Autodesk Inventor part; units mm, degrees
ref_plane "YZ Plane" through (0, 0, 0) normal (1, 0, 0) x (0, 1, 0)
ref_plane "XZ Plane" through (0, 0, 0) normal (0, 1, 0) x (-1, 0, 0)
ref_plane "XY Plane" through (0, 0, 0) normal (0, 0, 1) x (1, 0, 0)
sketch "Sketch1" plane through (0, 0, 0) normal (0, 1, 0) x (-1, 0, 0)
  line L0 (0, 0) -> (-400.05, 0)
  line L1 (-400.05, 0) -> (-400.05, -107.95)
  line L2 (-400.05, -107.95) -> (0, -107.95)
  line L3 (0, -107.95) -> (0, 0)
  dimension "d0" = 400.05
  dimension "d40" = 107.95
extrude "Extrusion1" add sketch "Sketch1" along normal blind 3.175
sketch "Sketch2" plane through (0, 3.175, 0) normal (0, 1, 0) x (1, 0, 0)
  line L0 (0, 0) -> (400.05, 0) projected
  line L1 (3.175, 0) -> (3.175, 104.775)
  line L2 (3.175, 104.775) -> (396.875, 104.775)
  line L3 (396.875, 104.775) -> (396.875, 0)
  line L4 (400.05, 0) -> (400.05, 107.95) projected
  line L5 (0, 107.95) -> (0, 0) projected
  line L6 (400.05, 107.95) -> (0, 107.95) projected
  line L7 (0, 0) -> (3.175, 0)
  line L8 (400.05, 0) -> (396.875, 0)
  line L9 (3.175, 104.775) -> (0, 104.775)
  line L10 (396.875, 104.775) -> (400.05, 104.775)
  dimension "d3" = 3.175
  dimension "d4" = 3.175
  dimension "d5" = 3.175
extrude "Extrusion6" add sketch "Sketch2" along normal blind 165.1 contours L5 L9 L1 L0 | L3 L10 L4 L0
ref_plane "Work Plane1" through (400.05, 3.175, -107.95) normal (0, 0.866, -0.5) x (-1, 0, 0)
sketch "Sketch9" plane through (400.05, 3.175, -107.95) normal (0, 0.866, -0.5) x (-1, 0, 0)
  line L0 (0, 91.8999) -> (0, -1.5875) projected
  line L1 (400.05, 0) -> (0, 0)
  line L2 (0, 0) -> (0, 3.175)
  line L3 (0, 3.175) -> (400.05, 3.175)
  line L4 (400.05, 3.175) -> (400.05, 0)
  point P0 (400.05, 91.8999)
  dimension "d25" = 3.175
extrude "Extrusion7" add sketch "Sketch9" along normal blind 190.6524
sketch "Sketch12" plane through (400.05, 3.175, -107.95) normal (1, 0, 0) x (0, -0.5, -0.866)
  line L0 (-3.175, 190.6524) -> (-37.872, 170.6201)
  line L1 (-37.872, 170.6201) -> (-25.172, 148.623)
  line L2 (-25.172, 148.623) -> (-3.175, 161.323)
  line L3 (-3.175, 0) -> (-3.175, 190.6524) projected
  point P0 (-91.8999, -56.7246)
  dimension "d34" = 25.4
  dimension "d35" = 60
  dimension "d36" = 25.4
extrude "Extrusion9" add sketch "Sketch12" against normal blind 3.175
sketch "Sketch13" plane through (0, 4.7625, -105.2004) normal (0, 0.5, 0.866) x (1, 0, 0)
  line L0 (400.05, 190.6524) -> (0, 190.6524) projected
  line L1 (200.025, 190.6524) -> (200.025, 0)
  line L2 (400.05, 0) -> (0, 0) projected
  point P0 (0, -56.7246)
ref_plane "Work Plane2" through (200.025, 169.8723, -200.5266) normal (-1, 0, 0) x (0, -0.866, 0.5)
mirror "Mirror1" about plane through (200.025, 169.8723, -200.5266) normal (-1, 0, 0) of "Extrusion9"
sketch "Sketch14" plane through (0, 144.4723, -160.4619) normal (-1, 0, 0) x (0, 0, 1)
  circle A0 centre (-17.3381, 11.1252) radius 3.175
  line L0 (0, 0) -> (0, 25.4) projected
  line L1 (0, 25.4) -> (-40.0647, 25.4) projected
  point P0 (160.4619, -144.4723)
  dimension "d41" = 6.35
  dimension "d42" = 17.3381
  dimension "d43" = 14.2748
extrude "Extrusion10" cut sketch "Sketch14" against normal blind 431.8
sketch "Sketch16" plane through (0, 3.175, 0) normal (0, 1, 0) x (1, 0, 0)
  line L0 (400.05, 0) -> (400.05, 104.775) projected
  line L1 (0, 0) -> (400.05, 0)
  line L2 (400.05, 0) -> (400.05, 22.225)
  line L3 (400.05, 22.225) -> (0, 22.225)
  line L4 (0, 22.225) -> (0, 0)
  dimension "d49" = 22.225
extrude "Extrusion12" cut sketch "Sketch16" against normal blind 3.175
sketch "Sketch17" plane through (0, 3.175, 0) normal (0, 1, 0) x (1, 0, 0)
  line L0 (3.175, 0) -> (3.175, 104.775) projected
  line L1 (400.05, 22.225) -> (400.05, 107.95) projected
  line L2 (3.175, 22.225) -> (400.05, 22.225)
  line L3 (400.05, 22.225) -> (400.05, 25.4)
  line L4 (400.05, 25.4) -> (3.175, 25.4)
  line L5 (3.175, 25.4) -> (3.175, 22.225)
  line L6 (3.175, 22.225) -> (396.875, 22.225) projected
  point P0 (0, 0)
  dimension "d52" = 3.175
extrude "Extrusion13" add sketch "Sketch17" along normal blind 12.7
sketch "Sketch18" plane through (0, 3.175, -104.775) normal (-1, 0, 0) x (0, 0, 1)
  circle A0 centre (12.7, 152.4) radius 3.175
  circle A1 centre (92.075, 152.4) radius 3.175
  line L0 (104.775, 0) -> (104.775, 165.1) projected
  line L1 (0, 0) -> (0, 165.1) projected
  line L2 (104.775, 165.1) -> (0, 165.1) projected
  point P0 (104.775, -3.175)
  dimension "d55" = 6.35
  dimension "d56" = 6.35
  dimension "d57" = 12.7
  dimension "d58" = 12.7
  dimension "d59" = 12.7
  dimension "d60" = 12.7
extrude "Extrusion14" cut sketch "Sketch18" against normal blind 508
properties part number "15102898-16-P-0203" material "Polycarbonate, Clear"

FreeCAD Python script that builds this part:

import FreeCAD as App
import Part
import Sketcher
from FreeCAD import Vector
Q = App.Units.Quantity


def add_polygon(sketch, points):
    """Adds a closed chain of lines whose ends are joined by coincident constraints."""
    first, n = sketch.GeometryCount, len(points)
    for a, b in zip(points, points[1:] + points[:1]):
        sketch.addGeometry(Part.LineSegment(App.Vector(*a, 0), App.Vector(*b, 0)), False)
    for i in range(n):
        sketch.addConstraint(Sketcher.Constraint("Coincident", first + i, 2, first + (i + 1) % n, 1))

doc = App.newDocument("Part")
body = doc.addObject("PartDesign::Body", "Body")
body.AllowCompound = True

# Sketch on XZ plane
sketch1 = body.newObject("Sketcher::SketchObject", "Sketch")
sketch1.AttachmentSupport = (doc.getObject("XZ_Plane"), [""])
sketch1.MapMode = "FlatFace"
add_polygon(sketch1, [(0, -107.95), (0, 0), (400.05, 0), (400.05, -107.95)])  # lines 0-3
sketch1.addConstraint([
    Sketcher.Constraint("Vertical", 0),
    Sketcher.Constraint("Horizontal", 1),
    Sketcher.Constraint("Vertical", 2),
    Sketcher.Constraint("Horizontal", 3),
    Sketcher.Constraint("Coincident", 0, 2, -1, 1),
    Sketcher.Constraint("DistanceX", 1, 1, 1, 2, Q("15.75 in")),
    Sketcher.Constraint("DistanceY", 0, 1, 0, 2, Q("4.25 in")),
])
pad1 = body.newObject("PartDesign::Pad", "Pad")
pad1.Profile = sketch1
pad1.Length = Q("0.125 in")
pad1.Reversed = True

# Sketch on XZ plane
sketch2 = body.newObject("Sketcher::SketchObject", "Sketch001")
sketch2.AttachmentSupport = (doc.getObject("XZ_Plane"), [""])
sketch2.MapMode = "FlatFace"
sketch2.AttachmentOffset = App.Placement(Vector(0, 0, -0.125 * 25.4), App.Rotation())
add_polygon(sketch2, [(0, -104.775), (0, 0), (3.175, 0), (3.175, -104.775)])  # lines 0-3
add_polygon(sketch2, [(396.875, -104.775), (396.875, 0), (400.05, 0), (400.05, -104.775)])  # lines 4-7
sketch2.addConstraint([
    Sketcher.Constraint("Vertical", 0),
    Sketcher.Constraint("Horizontal", 1),
    Sketcher.Constraint("Vertical", 2),
    Sketcher.Constraint("Horizontal", 3),
    Sketcher.Constraint("Vertical", 4),
    Sketcher.Constraint("Horizontal", 5),
    Sketcher.Constraint("Vertical", 6),
    Sketcher.Constraint("Horizontal", 7),
    Sketcher.Constraint("Coincident", 0, 2, -1, 1),
    Sketcher.Constraint("PointOnObject", 4, 2, -1),
    Sketcher.Constraint("Horizontal", 3, 2, 6, 2),
    Sketcher.Constraint("Equal", 3, 5),
    Sketcher.Constraint("DistanceX", 1, 1, 1, 2, Q("0.125 in")),
    Sketcher.Constraint("DistanceX", 1, 2, 4, 2, Q("15.5 in")),
    Sketcher.Constraint("DistanceY", 0, 1, 0, 2, Q("4.125 in")),
])
pad2 = body.newObject("PartDesign::Pad", "Pad001")
pad2.Profile = sketch2
pad2.Length = Q("6.5 in")
pad2.Reversed = True

# Sketch on an angled plane
sketch3 = body.newObject("Sketcher::SketchObject", "Sketch002")
sketch3.Placement = App.Placement(Vector(400.05, 3.175, -107.95), App.Rotation(Vector(-1, 0, 0), Vector(0, 0.5, 0.866025404), Vector(0, 0.866025404, -0.5), "ZXY"))
add_polygon(sketch3, [(400.05, 3.175), (0, 3.175), (0, 0), (400.05, 0)])  # lines 0-3
sketch3.addConstraint([
    Sketcher.Constraint("Horizontal", 0),
    Sketcher.Constraint("Vertical", 1),
    Sketcher.Constraint("Horizontal", 2),
    Sketcher.Constraint("Vertical", 3),
    Sketcher.Constraint("Coincident", 1, 2, -1, 1),
    Sketcher.Constraint("DistanceY", 1, 2, 1, 1, Q("0.125 in")),
    Sketcher.Constraint("DistanceX", 0, 2, 0, 1, Q("15.75 in")),
])
pad3 = body.newObject("PartDesign::Pad", "Pad002")
pad3.Profile = sketch3
pad3.Length = Q("7.506 in")

# Sketch on YZ plane
sketch4 = body.newObject("Sketcher::SketchObject", "Sketch003")
sketch4.AttachmentSupport = (doc.getObject("YZ_Plane"), [""])
sketch4.MapMode = "FlatFace"
sketch4.AttachmentOffset = App.Placement(Vector(0, 0, 15.75 * 25.4), App.Rotation())
add_polygon(sketch4, [(144.472316, -185.861869), (169.872322, -200.526569), (169.872341, -160.461936), (144.472294, -160.461909)])  # lines 0-3
sketch4.addConstraint([
    Sketcher.Constraint("Vertical", 1),
    Sketcher.Constraint("Horizontal", 2),
    Sketcher.Constraint("Vertical", 3),
    Sketcher.Constraint("Equal", 2, 3),
    Sketcher.Constraint("DistanceX", 2, 2, 2, 1, Q("1 in")),
    Sketcher.Constraint("Angle", 0, Q("-30 deg")),
    Sketcher.Constraint("DistanceY", 1, 2, -1, 1, Q("6.3174 in")),
    Sketcher.Constraint("DistanceX", -1, 1, 0, 2, Q("169.8723 mm")),
])
pad4 = body.newObject("PartDesign::Pad", "Pad003")
pad4.Profile = sketch4
pad4.Length = Q("0.125 in")
pad4.Reversed = True
doc.recompute()

datumplane = body.newObject("PartDesign::Plane", "DatumPlane")
datumplane.AttachmentSupport = (doc.getObject("YZ_Plane"), [""])
datumplane.MapMode = "FlatFace"
datumplane.AttachmentOffset = App.Placement(Vector(0, 0, 7.875 * 25.4), App.Rotation())
mirrored = body.newObject("PartDesign::Mirrored", "Mirrored")
mirrored.Originals = [pad4]
mirrored.MirrorPlane = (datumplane, [""])
body.Tip = mirrored

# Sketch on YZ plane
sketch5 = body.newObject("Sketcher::SketchObject", "Sketch004")
sketch5.AttachmentSupport = (doc.getObject("YZ_Plane"), [""])
sketch5.MapMode = "FlatFace"
sketch5.addGeometry(Part.Circle(Vector(155.5975, -177.8, 0), Vector(0, 0, 1), 3.175), False)
sketch5.addConstraint([
    Sketcher.Constraint("Diameter", 0, Q("0.25 in")),
    Sketcher.Constraint("DistanceY", 0, 3, -1, 1, Q("7 in")),
    Sketcher.Constraint("DistanceX", -1, 1, 0, 3, Q("155.5975 mm")),
])
pocket1 = body.newObject("PartDesign::Pocket", "Pocket")
pocket1.Profile = sketch5
pocket1.Length = Q("17 in")
pocket1.Reversed = True

# Sketch on XZ plane
sketch6 = body.newObject("Sketcher::SketchObject", "Sketch005")
sketch6.AttachmentSupport = (doc.getObject("XZ_Plane"), [""])
sketch6.MapMode = "FlatFace"
sketch6.AttachmentOffset = App.Placement(Vector(0, 0, -0.125 * 25.4), App.Rotation())
add_polygon(sketch6, [(0, 0), (400.05, 0), (400.05, -22.225), (0, -22.225)])  # lines 0-3
sketch6.addConstraint([
    Sketcher.Constraint("Horizontal", 0),
    Sketcher.Constraint("Vertical", 1),
    Sketcher.Constraint("Horizontal", 2),
    Sketcher.Constraint("Vertical", 3),
    Sketcher.Constraint("Coincident", 3, 2, -1, 1),
    Sketcher.Constraint("DistanceY", 1, 2, 1, 1, Q("0.875 in")),
    Sketcher.Constraint("DistanceX", 0, 1, 0, 2, Q("15.75 in")),
])
pocket2 = body.newObject("PartDesign::Pocket", "Pocket001")
pocket2.Profile = sketch6
pocket2.Length = Q("0.125 in")
pocket2.Reversed = True

# Sketch on XZ plane
sketch7 = body.newObject("Sketcher::SketchObject", "Sketch006")
sketch7.AttachmentSupport = (doc.getObject("XZ_Plane"), [""])
sketch7.MapMode = "FlatFace"
sketch7.AttachmentOffset = App.Placement(Vector(0, 0, -0.125 * 25.4), App.Rotation())
add_polygon(sketch7, [(3.175, -25.4), (3.175, -22.225), (400.05, -22.225), (400.05, -25.4)])  # lines 0-3
sketch7.addConstraint([
    Sketcher.Constraint("Vertical", 0),
    Sketcher.Constraint("Horizontal", 1),
    Sketcher.Constraint("Vertical", 2),
    Sketcher.Constraint("Horizontal", 3),
    Sketcher.Constraint("DistanceY", 0, 1, 0, 2, Q("0.125 in")),
    Sketcher.Constraint("DistanceX", -1, 1, 0, 2, Q("0.125 in")),
    Sketcher.Constraint("DistanceY", 2, 2, -1, 1, Q("1 in")),
    Sketcher.Constraint("DistanceX", 1, 1, 1, 2, Q("15.625 in")),
])
pad5 = body.newObject("PartDesign::Pad", "Pad004")
pad5.Profile = sketch7
pad5.Length = Q("0.5 in")
pad5.Reversed = True

# Sketch on YZ plane
sketch8 = body.newObject("Sketcher::SketchObject", "Sketch007")
sketch8.AttachmentSupport = (doc.getObject("YZ_Plane"), [""])
sketch8.MapMode = "FlatFace"
sketch8.addGeometry([
    Part.Circle(Vector(155.575, -92.075, 0), Vector(0, 0, 1), 3.175),
    Part.Circle(Vector(155.575, -12.7, 0), Vector(0, 0, 1), 3.175),
], False)
sketch8.addConstraint([
    Sketcher.Constraint("Equal", 0, 1),
    Sketcher.Constraint("Vertical", 0, 3, 1, 3),
    Sketcher.Constraint("Diameter", 0, Q("0.25 in")),
    Sketcher.Constraint("DistanceY", 1, 3, -1, 1, Q("0.5 in")),
    Sketcher.Constraint("DistanceX", -1, 1, 0, 3, Q("6.125 in")),
    Sketcher.Constraint("DistanceY", 0, 3, -1, 1, Q("3.625 in")),
])
pocket3 = body.newObject("PartDesign::Pocket", "Pocket002")
pocket3.Profile = sketch8
pocket3.Length = Q("20 in")
pocket3.Reversed = True

doc.recompute()
